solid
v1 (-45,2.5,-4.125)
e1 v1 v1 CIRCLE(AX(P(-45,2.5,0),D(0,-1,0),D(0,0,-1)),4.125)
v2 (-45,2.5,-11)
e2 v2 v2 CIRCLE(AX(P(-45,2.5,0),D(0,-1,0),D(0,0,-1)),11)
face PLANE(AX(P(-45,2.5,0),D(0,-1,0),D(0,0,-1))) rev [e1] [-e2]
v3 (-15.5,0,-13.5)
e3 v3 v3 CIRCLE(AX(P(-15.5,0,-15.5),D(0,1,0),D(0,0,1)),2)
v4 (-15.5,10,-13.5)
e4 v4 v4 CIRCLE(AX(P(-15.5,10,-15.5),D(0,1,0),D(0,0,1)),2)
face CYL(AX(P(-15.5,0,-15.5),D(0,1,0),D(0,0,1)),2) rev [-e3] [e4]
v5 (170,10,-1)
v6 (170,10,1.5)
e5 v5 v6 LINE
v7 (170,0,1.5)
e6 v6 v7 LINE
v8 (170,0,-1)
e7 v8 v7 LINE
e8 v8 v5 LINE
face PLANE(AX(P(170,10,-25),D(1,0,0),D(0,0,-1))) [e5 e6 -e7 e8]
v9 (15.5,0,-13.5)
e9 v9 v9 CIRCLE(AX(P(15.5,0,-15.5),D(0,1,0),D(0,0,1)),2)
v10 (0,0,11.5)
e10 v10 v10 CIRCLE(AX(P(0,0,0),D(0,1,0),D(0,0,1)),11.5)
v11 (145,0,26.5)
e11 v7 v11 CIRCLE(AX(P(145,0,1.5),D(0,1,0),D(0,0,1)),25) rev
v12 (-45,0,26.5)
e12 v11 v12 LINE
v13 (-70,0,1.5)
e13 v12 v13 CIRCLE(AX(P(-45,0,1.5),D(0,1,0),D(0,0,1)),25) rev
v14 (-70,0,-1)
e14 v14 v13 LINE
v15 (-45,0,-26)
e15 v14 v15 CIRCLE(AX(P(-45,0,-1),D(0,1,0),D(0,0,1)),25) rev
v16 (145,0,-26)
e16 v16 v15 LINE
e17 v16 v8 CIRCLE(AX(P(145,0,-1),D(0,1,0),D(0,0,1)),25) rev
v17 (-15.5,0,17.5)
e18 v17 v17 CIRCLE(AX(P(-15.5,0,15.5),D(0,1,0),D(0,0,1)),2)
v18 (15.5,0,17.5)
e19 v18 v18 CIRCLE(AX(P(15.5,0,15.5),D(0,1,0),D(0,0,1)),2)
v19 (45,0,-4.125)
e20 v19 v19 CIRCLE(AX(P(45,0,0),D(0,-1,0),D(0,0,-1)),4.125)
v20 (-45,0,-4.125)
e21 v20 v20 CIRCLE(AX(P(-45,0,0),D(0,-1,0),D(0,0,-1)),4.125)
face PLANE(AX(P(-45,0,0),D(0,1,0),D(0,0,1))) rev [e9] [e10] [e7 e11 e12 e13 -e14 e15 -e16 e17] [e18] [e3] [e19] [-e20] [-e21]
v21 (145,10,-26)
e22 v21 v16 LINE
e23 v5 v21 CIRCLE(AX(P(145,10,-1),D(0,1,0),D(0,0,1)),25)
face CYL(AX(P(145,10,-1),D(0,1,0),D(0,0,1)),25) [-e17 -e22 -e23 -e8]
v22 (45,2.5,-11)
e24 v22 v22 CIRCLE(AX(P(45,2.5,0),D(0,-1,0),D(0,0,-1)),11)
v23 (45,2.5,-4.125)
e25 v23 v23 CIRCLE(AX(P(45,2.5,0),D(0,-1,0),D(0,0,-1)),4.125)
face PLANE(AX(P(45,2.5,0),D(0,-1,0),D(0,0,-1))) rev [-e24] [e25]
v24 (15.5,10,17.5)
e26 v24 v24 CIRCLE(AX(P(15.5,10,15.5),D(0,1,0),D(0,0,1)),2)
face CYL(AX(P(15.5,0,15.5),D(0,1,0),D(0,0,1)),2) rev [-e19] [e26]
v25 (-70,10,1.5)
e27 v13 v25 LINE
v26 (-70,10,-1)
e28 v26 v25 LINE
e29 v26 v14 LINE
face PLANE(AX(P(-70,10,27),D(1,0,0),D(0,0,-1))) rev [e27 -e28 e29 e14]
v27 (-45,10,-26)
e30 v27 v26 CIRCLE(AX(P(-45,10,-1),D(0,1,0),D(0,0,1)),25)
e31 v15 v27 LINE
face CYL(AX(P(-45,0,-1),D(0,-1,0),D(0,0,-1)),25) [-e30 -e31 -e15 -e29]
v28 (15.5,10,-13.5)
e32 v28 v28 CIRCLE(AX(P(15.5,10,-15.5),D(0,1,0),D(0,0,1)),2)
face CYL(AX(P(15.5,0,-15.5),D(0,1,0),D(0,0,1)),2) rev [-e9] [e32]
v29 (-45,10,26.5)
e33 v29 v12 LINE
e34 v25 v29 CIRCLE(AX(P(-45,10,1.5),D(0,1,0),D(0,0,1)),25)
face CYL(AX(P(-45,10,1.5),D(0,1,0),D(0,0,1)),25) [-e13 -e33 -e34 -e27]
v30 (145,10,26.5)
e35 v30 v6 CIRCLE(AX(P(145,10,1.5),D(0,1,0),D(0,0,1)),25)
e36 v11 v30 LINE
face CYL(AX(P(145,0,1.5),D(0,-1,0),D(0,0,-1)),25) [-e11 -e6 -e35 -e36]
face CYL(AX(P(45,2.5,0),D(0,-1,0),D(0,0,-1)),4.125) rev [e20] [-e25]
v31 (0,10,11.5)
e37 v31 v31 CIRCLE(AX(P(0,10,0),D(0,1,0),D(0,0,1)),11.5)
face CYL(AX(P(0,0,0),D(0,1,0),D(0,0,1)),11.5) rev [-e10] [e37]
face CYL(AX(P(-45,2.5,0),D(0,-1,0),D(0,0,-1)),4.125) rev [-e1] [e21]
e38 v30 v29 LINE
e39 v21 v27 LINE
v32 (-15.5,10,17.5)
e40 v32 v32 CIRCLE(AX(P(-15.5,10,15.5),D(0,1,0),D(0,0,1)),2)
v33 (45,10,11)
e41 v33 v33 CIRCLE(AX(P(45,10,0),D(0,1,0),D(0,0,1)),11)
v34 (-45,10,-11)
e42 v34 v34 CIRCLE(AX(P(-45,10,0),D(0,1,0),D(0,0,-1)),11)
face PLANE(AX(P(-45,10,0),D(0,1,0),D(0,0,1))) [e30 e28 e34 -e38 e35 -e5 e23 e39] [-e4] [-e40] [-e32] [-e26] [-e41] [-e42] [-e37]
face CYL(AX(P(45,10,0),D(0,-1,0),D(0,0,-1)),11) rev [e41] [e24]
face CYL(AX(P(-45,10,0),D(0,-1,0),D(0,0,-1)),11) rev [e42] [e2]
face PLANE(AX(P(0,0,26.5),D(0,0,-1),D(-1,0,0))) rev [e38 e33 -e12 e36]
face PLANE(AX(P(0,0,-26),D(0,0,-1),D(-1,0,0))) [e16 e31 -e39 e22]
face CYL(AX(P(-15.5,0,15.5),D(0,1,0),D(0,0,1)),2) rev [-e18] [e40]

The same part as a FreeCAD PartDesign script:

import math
import FreeCAD as App
import Part
import Sketcher
from FreeCAD import Vector
Q = App.Units.Quantity


def edges_at(feature, points):
    """Names of the edges that pass closest to the given points."""
    edges = feature.Shape.Edges
    near = lambda p: min(range(len(edges)), key=lambda i: edges[i].distToShape(Part.Vertex(*p))[0])
    return sorted({f"Edge{near(p) + 1}" for p in points})


def add_polygon(sketch, points):
    """Adds a closed chain of lines whose ends are joined by coincident constraints."""
    first, n = sketch.GeometryCount, len(points)
    for a, b in zip(points, points[1:] + points[:1]):
        sketch.addGeometry(Part.LineSegment(App.Vector(*a, 0), App.Vector(*b, 0)), False)
    for i in range(n):
        sketch.addConstraint(Sketcher.Constraint("Coincident", first + i, 2, first + (i + 1) % n, 1))

doc = App.newDocument("Part")
params = doc.addObject("Spreadsheet::Sheet", "Params")
for row, (alias, value) in enumerate([
    ("sketch1_diameter", "22 mm"),
    ("sketch1_radius", "25 mm"),
    ("sketch1_width", "90 mm"),
    ("sketch1_height", "27 mm"),
    ("pad1_length", "10 mm"),
    ("sketch2_diameter", "22 mm"),
    ("sketch2_diameter2", "8.25 mm"),
    ("pad2_length", "2.5 mm"),
    ("sketch3_diameter", "4 mm"),
    ("sketch3_diameter2", "23 mm"),
    ("pocket1_length", "10 mm"),
    ("sketch4_height", "52 mm"),
    ("pad3_length", "10 mm"),
    ("sketch5_height", "52 mm"),
    ("pad4_length", "10 mm"),
    ("fillet_radius", "25 mm"),
    ("pocket2_length", "10 mm"),
    ("sketch7_width", "240 mm"),
    ("sketch7_height", "26 mm"),
    ("pad5_length", "10 mm"),
    ("fillet2_radius", "25 mm"),
    ("sketch8_width", "240 mm"),
    ("sketch8_height", "26 mm"),
    ("pad6_length", "10 mm"),
    ("fillet3_radius", "25 mm"),
], start=1):
    params.set(f"A{row}", alias)
    params.set(f"B{row}", "=" + value)
    params.setAlias(f"B{row}", alias)

body = doc.addObject("PartDesign::Body", "Body")

sketch1 = body.newObject("Sketcher::SketchObject", "Sketch")
sketch1.AttachmentSupport = (doc.getObject("XZ_Plane"), [""])
sketch1.MapMode = "FlatFace"
sketch1.addGeometry(Part.LineSegment(Vector(70, 27, 0), Vector(70, 0, 0)), False)
sketch1.addGeometry(Part.ArcOfCircle(Part.Circle(Vector(45, 0, 0), Vector(0, 0, 1), 25), math.radians(-90), math.radians(0)), False)
sketch1.addGeometry(Part.LineSegment(Vector(45, -25, 0), Vector(-45, -25, 0)), False)
sketch1.addGeometry(Part.ArcOfCircle(Part.Circle(Vector(-45, 0, 0), Vector(0, 0, 1), 25), math.radians(180), math.radians(270)), False)
sketch1.addGeometry(Part.LineSegment(Vector(-70, 0, 0), Vector(-70, 27, 0)), False)
sketch1.addGeometry(Part.LineSegment(Vector(-70, 27, 0), Vector(70, 27, 0)), False)
sketch1.addGeometry(Part.Circle(Vector(-45, 0, 0), Vector(0, 0, 1), 11), False)
sketch1.addGeometry(Part.Circle(Vector(45, 0, 0), Vector(0, 0, 1), 11), False)
sketch1.addConstraint(Sketcher.Constraint("Tangent", 0, 2, 1, 2))
sketch1.addConstraint(Sketcher.Constraint("Tangent", 1, 1, 2, 1))
sketch1.addConstraint(Sketcher.Constraint("Tangent", 2, 2, 3, 2))
sketch1.addConstraint(Sketcher.Constraint("Tangent", 3, 1, 4, 1))
sketch1.addConstraint(Sketcher.Constraint("Coincident", 4, 2, 5, 1))
sketch1.addConstraint(Sketcher.Constraint("Coincident", 5, 2, 0, 1))
sketch1.addConstraint(Sketcher.Constraint("Vertical", 0))
sketch1.addConstraint(Sketcher.Constraint("Horizontal", 2))
sketch1.addConstraint(Sketcher.Constraint("Vertical", 4))
sketch1.addConstraint(Sketcher.Constraint("Horizontal", 5))
sketch1.addConstraint(Sketcher.Constraint("Coincident", 6, 3, 3, 3))
sketch1.addConstraint(Sketcher.Constraint("Coincident", 7, 3, 1, 3))
sketch1.addConstraint(Sketcher.Constraint("Equal", 1, 3))
sketch1.addConstraint(Sketcher.Constraint("Equal", 6, 7))
sketch1.addConstraint(Sketcher.Constraint("Symmetric", 1, 3, 3, 3, -1, 1))
sketch1.addConstraint(Sketcher.Constraint("Diameter", 6, 22.0))
sketch1.addConstraint(Sketcher.Constraint("Radius", 1, 25.0))
sketch1.addConstraint(Sketcher.Constraint("DistanceX", 2, 2, 2, 1, 90.0))
sketch1.addConstraint(Sketcher.Constraint("DistanceY", 0, 2, 0, 1, 27.0))
sketch1.setExpression("Constraints[15]", "Params.sketch1_diameter")
sketch1.setExpression("Constraints[16]", "Params.sketch1_radius")
sketch1.setExpression("Constraints[17]", "Params.sketch1_width")
sketch1.setExpression("Constraints[18]", "Params.sketch1_height")
pad1 = body.newObject("PartDesign::Pad", "Pad")
pad1.Profile = sketch1
pad1.setExpression("Length", "Params.pad1_length")
pad1.Reversed = True

sketch2 = body.newObject("Sketcher::SketchObject", "Sketch001")
sketch2.AttachmentSupport = (doc.getObject("XZ_Plane"), [""])
sketch2.MapMode = "FlatFace"
sketch2.addGeometry(Part.Circle(Vector(45, 0, 0), Vector(0, 0, 1), 11), False)
sketch2.addGeometry(Part.Circle(Vector(45, 0, 0), Vector(0, 0, 1), 4.125), False)
sketch2.addGeometry(Part.Circle(Vector(-45, 0, 0), Vector(0, 0, 1), 11), False)
sketch2.addGeometry(Part.Circle(Vector(-45, 0, 0), Vector(0, 0, 1), 4.125), False)
sketch2.addConstraint(Sketcher.Constraint("Coincident", 1, 3, 0, 3))
sketch2.addConstraint(Sketcher.Constraint("Coincident", 3, 3, 2, 3))
sketch2.addConstraint(Sketcher.Constraint("Equal", 0, 2))
sketch2.addConstraint(Sketcher.Constraint("Equal", 1, 3))
sketch2.addConstraint(Sketcher.Constraint("Symmetric", 0, 3, 2, 3, -1, 1))
sketch2.addConstraint(Sketcher.Constraint("PointOnObject", 0, 3, -1))
sketch2.addConstraint(Sketcher.Constraint("Diameter", 0, 22.0))
sketch2.addConstraint(Sketcher.Constraint("Diameter", 1, 8.25))
sketch2.addConstraint(Sketcher.Constraint("DistanceX", -1, 1, 0, 3, 45.0))
sketch2.setExpression("Constraints[6]", "Params.sketch2_diameter")
sketch2.setExpression("Constraints[7]", "Params.sketch2_diameter2")
pad2 = body.newObject("PartDesign::Pad", "Pad001")
pad2.Profile = sketch2
pad2.setExpression("Length", "Params.pad2_length")
pad2.Reversed = True

sketch3 = body.newObject("Sketcher::SketchObject", "Sketch002")
sketch3.AttachmentSupport = (doc.getObject("XZ_Plane"), [""])
sketch3.MapMode = "FlatFace"
sketch3.AttachmentOffset = App.Placement(Vector(0, 0, -10), App.Rotation())
sketch3.addGeometry(Part.Circle(Vector(15.5, -15.5, 0), Vector(0, 0, 1), 2), False)
sketch3.addGeometry(Part.Circle(Vector(-15.5, -15.5, 0), Vector(0, 0, 1), 2), False)
sketch3.addGeometry(Part.Circle(Vector(-15.5, 15.5, 0), Vector(0, 0, 1), 2), False)
sketch3.addGeometry(Part.Circle(Vector(15.5, 15.5, 0), Vector(0, 0, 1), 2), False)
sketch3.addGeometry(Part.Circle(Vector(0, 0, 0), Vector(0, 0, 1), 11.5), False)
sketch3.addConstraint(Sketcher.Constraint("Coincident", 4, 3, -1, 1))
sketch3.addConstraint(Sketcher.Constraint("Equal", 0, 1))
sketch3.addConstraint(Sketcher.Constraint("Equal", 1, 2))
sketch3.addConstraint(Sketcher.Constraint("Equal", 2, 3))
sketch3.addConstraint(Sketcher.Constraint("Symmetric", 0, 3, 2, 3, -1, 1))
sketch3.addConstraint(Sketcher.Constraint("Symmetric", 1, 3, 3, 3, -1, 1))
sketch3.addConstraint(Sketcher.Constraint("Symmetric", 0, 3, 1, 3, -2))
sketch3.addConstraint(Sketcher.Constraint("Diameter", 0, 4.0))
sketch3.addConstraint(Sketcher.Constraint("Diameter", 4, 23.0))
sketch3.addConstraint(Sketcher.Constraint("DistanceX", 1, 3, 0, 3, 31.0))
sketch3.addConstraint(Sketcher.Constraint("DistanceY", 1, 3, 2, 3, 31.0))
sketch3.setExpression("Constraints[7]", "Params.sketch3_diameter")
sketch3.setExpression("Constraints[8]", "Params.sketch3_diameter2")
pocket1 = body.newObject("PartDesign::Pocket", "Pocket")
pocket1.Profile = sketch3
pocket1.setExpression("Length", "Params.pocket1_length")
pocket1.Reversed = True

sketch4 = body.newObject("Sketcher::SketchObject", "Sketch003")
sketch4.AttachmentSupport = (doc.getObject("XZ_Plane"), [""])
sketch4.MapMode = "FlatFace"
add_polygon(sketch4, [(151.373496, 27), (70, 27), (66.139225, 20.893576), (65.445822, -2.682119), (50.986838, -16.314874), (45, -25), (151.373496, -25)])
sketch4.addConstraint(Sketcher.Constraint("Horizontal", 0))
sketch4.addConstraint(Sketcher.Constraint("Horizontal", 5))
sketch4.addConstraint(Sketcher.Constraint("Vertical", 6))
sketch4.addConstraint(Sketcher.Constraint("DistanceY", 6, 1, 6, 2, 52.0))
sketch4.addConstraint(Sketcher.Constraint("DistanceX", -1, 1, 0, 2, 70.0))
sketch4.addConstraint(Sketcher.Constraint("DistanceY", -1, 1, 0, 2, 27.0))
sketch4.addConstraint(Sketcher.Constraint("DistanceX", -1, 1, 4, 2, 45.0))
sketch4.addConstraint(Sketcher.Constraint("Distance", 1, 7.224541))
sketch4.addConstraint(Sketcher.Constraint("Distance", 2, 23.58589))
sketch4.addConstraint(Sketcher.Constraint("Distance", 3, 19.872449))
sketch4.addConstraint(Sketcher.Constraint("DistanceX", 0, 2, 0, 1, 81.373496))
sketch4.addConstraint(Sketcher.Constraint("DistanceX", -1, 1, 2, 2, 65.445822))
sketch4.addConstraint(Sketcher.Constraint("DistanceY", 2, 2, -1, 1, 2.682119))
sketch4.addConstraint(Sketcher.Constraint("DistanceX", -1, 1, 3, 2, 50.986838))
sketch4.setExpression("Constraints[10]", "Params.sketch4_height")
pad3 = body.newObject("PartDesign::Pad", "Pad002")
pad3.Profile = sketch4
pad3.setExpression("Length", "Params.pad3_length")
pad3.Reversed = True

sketch5 = body.newObject("Sketcher::SketchObject", "Sketch004")
sketch5.AttachmentSupport = (doc.getObject("XZ_Plane"), [""])
sketch5.MapMode = "FlatFace"
add_polygon(sketch5, [(151.373496, -25), (170, -25), (170, 27), (151.373496, 27), (141.038307, 1)])
sketch5.addConstraint(Sketcher.Constraint("Horizontal", 0))
sketch5.addConstraint(Sketcher.Constraint("Vertical", 1))
sketch5.addConstraint(Sketcher.Constraint("Horizontal", 2))
sketch5.addConstraint(Sketcher.Constraint("Vertical", 2, 2, 4, 2))
sketch5.addConstraint(Sketcher.Constraint("Equal", 3, 4))
sketch5.addConstraint(Sketcher.Constraint("DistanceY", 1, 1, 1, 2, 52.0))
sketch5.addConstraint(Sketcher.Constraint("DistanceX", -1, 1, 0, 2, 170.0))
sketch5.addConstraint(Sketcher.Constraint("DistanceY", 0, 2, -1, 1, 25.0))
sketch5.addConstraint(Sketcher.Constraint("Distance", 3, 27.978851))
sketch5.addConstraint(Sketcher.Constraint("DistanceX", 0, 1, 0, 2, 18.626504))
sketch5.setExpression("Constraints[10]", "Params.sketch5_height")
pad4 = body.newObject("PartDesign::Pad", "Pad003")
pad4.Profile = sketch5
pad4.setExpression("Length", "Params.pad4_length")
pad4.Reversed = True
doc.recompute()

fillet = body.newObject("PartDesign::Fillet", "Fillet")
fillet.Base = (pad4, edges_at(pad4, [(170, 5, 27), (170, 5, -25), (-70, 5, 27)]))
fillet.setExpression("Radius", "Params.fillet_radius")

sketch6 = body.newObject("Sketcher::SketchObject", "Sketch005")
sketch6.AttachmentSupport = (doc.getObject("XZ_Plane"), [""])
sketch6.MapMode = "FlatFace"
sketch6.AttachmentOffset = App.Placement(Vector(0, 0, -10), App.Rotation())
add_polygon(sketch6, [(133.980636, 69.297657), (165.367779, 26), (-59.2657, 26), (-45.110714, 66.528204)])
sketch6.addConstraint(Sketcher.Constraint("Horizontal", 1))
sketch6.addConstraint(Sketcher.Constraint("DistanceY", -1, 1, 0, 2, 26.0))
sketch6.addConstraint(Sketcher.Constraint("Distance", 2, 42.928999))
sketch6.addConstraint(Sketcher.Constraint("DistanceX", 1, 2, 1, 1, 224.633479))
sketch6.addConstraint(Sketcher.Constraint("DistanceX", 1, 2, -1, 1, 59.2657))
sketch6.addConstraint(Sketcher.Constraint("Distance", 0, 53.477471))
sketch6.addConstraint(Sketcher.Constraint("Distance", 3, 179.112761))
sketch6.addConstraint(Sketcher.Constraint("DistanceX", 2, 2, 3, 2, 179.091349))
pocket2 = body.newObject("PartDesign::Pocket", "Pocket001")
pocket2.Profile = sketch6
pocket2.setExpression("Length", "Params.pocket2_length")
pocket2.Reversed = True

sketch7 = body.newObject("Sketcher::SketchObject", "Sketch006")
sketch7.AttachmentSupport = (doc.getObject("XZ_Plane"), [""])
sketch7.MapMode = "FlatFace"
sketch7.AttachmentOffset = App.Placement(Vector(0, 0, -10), App.Rotation())
add_polygon(sketch7, [(-70, 0), (-63.907316, -7.976406), (-30.230523, -19.829281), (0, -23.70575), (55.598298, -15.952813), (170, 0), (170, -26), (-70, -26)])
sketch7.addConstraint(Sketcher.Constraint("Vertical", 5))
sketch7.addConstraint(Sketcher.Constraint("Horizontal", 6))
sketch7.addConstraint(Sketcher.Constraint("Vertical", 7))
sketch7.addConstraint(Sketcher.Constraint("PointOnObject", 2, 2, -2))
sketch7.addConstraint(Sketcher.Constraint("PointOnObject", 4, 2, -1))
sketch7.addConstraint(Sketcher.Constraint("PointOnObject", 7, 2, -1))
sketch7.addConstraint(Sketcher.Constraint("Parallel", 3, 4))
sketch7.addConstraint(Sketcher.Constraint("DistanceX", 6, 2, 6, 1, 240.0))
sketch7.addConstraint(Sketcher.Constraint("DistanceY", 5, 2, 5, 1, 26.0))
sketch7.addConstraint(Sketcher.Constraint("DistanceX", -1, 1, 4, 2, 170.0))
sketch7.addConstraint(Sketcher.Constraint("Angle", 1, Q("-19.390015 deg")))
sketch7.addConstraint(Sketcher.Constraint("DistanceX", -1, 1, 3, 2, 55.598298))
sketch7.addConstraint(Sketcher.Constraint("Distance", 1, 35.701779))
sketch7.addConstraint(Sketcher.Constraint("Distance", 2, 30.47805))
sketch7.addConstraint(Sketcher.Constraint("Distance", 3, 56.136252))
sketch7.addConstraint(Sketcher.Constraint("DistanceY", 1, 2, -1, 1, 19.829281))
sketch7.setExpression("Constraints[15]", "Params.sketch7_width")
sketch7.setExpression("Constraints[16]", "Params.sketch7_height")
pad5 = body.newObject("PartDesign::Pad", "Pad004")
pad5.Profile = sketch7
pad5.setExpression("Length", "Params.pad5_length")
doc.recompute()

fillet2 = body.newObject("PartDesign::Fillet", "Fillet001")
fillet2.Base = (pad5, edges_at(pad5, [(-70, 5, -26), (170, 5, -26)]))
fillet2.setExpression("Radius", "Params.fillet2_radius")

sketch8 = body.newObject("Sketcher::SketchObject", "Sketch007")
sketch8.AttachmentSupport = (doc.getObject("XZ_Plane"), [""])
sketch8.MapMode = "FlatFace"
sketch8.AttachmentOffset = App.Placement(Vector(0, 0, -10), App.Rotation())
add_polygon(sketch8, [(170, 0.5), (142.437847, 19.831942), (-54.330277, 19.831942), (-70, 0.5), (-70, 26.5), (170, 26.5)])
sketch8.addConstraint(Sketcher.Constraint("Horizontal", 1))
sketch8.addConstraint(Sketcher.Constraint("Vertical", 3))
sketch8.addConstraint(Sketcher.Constraint("Horizontal", 4))
sketch8.addConstraint(Sketcher.Constraint("Vertical", 5))
sketch8.addConstraint(Sketcher.Constraint("Horizontal", 2, 2, 5, 2))
sketch8.addConstraint(Sketcher.Constraint("DistanceX", 4, 1, 4, 2, 240.0))
sketch8.addConstraint(Sketcher.Constraint("DistanceY", 3, 1, 3, 2, 26.0))
sketch8.addConstraint(Sketcher.Constraint("DistanceX", 2, 2, -1, 1, 70.0))
sketch8.addConstraint(Sketcher.Constraint("DistanceY", -1, 1, 2, 2, 0.5))
sketch8.addConstraint(Sketcher.Constraint("Distance", 0, 33.665951))
sketch8.addConstraint(Sketcher.Constraint("Distance", 2, 24.885019))
sketch8.addConstraint(Sketcher.Constraint("DistanceX", 1, 2, 1, 1, 196.768124))
sketch8.setExpression("Constraints[11]", "Params.sketch8_width")
sketch8.setExpression("Constraints[12]", "Params.sketch8_height")
pad6 = body.newObject("PartDesign::Pad", "Pad005")
pad6.Profile = sketch8
pad6.setExpression("Length", "Params.pad6_length")
doc.recompute()

fillet3 = body.newObject("PartDesign::Fillet", "Fillet002")
fillet3.Base = (pad6, edges_at(pad6, [(-70, 5, 26.5), (170, 5, 26.5)]))
fillet3.setExpression("Radius", "Params.fillet3_radius")

doc.recompute()
